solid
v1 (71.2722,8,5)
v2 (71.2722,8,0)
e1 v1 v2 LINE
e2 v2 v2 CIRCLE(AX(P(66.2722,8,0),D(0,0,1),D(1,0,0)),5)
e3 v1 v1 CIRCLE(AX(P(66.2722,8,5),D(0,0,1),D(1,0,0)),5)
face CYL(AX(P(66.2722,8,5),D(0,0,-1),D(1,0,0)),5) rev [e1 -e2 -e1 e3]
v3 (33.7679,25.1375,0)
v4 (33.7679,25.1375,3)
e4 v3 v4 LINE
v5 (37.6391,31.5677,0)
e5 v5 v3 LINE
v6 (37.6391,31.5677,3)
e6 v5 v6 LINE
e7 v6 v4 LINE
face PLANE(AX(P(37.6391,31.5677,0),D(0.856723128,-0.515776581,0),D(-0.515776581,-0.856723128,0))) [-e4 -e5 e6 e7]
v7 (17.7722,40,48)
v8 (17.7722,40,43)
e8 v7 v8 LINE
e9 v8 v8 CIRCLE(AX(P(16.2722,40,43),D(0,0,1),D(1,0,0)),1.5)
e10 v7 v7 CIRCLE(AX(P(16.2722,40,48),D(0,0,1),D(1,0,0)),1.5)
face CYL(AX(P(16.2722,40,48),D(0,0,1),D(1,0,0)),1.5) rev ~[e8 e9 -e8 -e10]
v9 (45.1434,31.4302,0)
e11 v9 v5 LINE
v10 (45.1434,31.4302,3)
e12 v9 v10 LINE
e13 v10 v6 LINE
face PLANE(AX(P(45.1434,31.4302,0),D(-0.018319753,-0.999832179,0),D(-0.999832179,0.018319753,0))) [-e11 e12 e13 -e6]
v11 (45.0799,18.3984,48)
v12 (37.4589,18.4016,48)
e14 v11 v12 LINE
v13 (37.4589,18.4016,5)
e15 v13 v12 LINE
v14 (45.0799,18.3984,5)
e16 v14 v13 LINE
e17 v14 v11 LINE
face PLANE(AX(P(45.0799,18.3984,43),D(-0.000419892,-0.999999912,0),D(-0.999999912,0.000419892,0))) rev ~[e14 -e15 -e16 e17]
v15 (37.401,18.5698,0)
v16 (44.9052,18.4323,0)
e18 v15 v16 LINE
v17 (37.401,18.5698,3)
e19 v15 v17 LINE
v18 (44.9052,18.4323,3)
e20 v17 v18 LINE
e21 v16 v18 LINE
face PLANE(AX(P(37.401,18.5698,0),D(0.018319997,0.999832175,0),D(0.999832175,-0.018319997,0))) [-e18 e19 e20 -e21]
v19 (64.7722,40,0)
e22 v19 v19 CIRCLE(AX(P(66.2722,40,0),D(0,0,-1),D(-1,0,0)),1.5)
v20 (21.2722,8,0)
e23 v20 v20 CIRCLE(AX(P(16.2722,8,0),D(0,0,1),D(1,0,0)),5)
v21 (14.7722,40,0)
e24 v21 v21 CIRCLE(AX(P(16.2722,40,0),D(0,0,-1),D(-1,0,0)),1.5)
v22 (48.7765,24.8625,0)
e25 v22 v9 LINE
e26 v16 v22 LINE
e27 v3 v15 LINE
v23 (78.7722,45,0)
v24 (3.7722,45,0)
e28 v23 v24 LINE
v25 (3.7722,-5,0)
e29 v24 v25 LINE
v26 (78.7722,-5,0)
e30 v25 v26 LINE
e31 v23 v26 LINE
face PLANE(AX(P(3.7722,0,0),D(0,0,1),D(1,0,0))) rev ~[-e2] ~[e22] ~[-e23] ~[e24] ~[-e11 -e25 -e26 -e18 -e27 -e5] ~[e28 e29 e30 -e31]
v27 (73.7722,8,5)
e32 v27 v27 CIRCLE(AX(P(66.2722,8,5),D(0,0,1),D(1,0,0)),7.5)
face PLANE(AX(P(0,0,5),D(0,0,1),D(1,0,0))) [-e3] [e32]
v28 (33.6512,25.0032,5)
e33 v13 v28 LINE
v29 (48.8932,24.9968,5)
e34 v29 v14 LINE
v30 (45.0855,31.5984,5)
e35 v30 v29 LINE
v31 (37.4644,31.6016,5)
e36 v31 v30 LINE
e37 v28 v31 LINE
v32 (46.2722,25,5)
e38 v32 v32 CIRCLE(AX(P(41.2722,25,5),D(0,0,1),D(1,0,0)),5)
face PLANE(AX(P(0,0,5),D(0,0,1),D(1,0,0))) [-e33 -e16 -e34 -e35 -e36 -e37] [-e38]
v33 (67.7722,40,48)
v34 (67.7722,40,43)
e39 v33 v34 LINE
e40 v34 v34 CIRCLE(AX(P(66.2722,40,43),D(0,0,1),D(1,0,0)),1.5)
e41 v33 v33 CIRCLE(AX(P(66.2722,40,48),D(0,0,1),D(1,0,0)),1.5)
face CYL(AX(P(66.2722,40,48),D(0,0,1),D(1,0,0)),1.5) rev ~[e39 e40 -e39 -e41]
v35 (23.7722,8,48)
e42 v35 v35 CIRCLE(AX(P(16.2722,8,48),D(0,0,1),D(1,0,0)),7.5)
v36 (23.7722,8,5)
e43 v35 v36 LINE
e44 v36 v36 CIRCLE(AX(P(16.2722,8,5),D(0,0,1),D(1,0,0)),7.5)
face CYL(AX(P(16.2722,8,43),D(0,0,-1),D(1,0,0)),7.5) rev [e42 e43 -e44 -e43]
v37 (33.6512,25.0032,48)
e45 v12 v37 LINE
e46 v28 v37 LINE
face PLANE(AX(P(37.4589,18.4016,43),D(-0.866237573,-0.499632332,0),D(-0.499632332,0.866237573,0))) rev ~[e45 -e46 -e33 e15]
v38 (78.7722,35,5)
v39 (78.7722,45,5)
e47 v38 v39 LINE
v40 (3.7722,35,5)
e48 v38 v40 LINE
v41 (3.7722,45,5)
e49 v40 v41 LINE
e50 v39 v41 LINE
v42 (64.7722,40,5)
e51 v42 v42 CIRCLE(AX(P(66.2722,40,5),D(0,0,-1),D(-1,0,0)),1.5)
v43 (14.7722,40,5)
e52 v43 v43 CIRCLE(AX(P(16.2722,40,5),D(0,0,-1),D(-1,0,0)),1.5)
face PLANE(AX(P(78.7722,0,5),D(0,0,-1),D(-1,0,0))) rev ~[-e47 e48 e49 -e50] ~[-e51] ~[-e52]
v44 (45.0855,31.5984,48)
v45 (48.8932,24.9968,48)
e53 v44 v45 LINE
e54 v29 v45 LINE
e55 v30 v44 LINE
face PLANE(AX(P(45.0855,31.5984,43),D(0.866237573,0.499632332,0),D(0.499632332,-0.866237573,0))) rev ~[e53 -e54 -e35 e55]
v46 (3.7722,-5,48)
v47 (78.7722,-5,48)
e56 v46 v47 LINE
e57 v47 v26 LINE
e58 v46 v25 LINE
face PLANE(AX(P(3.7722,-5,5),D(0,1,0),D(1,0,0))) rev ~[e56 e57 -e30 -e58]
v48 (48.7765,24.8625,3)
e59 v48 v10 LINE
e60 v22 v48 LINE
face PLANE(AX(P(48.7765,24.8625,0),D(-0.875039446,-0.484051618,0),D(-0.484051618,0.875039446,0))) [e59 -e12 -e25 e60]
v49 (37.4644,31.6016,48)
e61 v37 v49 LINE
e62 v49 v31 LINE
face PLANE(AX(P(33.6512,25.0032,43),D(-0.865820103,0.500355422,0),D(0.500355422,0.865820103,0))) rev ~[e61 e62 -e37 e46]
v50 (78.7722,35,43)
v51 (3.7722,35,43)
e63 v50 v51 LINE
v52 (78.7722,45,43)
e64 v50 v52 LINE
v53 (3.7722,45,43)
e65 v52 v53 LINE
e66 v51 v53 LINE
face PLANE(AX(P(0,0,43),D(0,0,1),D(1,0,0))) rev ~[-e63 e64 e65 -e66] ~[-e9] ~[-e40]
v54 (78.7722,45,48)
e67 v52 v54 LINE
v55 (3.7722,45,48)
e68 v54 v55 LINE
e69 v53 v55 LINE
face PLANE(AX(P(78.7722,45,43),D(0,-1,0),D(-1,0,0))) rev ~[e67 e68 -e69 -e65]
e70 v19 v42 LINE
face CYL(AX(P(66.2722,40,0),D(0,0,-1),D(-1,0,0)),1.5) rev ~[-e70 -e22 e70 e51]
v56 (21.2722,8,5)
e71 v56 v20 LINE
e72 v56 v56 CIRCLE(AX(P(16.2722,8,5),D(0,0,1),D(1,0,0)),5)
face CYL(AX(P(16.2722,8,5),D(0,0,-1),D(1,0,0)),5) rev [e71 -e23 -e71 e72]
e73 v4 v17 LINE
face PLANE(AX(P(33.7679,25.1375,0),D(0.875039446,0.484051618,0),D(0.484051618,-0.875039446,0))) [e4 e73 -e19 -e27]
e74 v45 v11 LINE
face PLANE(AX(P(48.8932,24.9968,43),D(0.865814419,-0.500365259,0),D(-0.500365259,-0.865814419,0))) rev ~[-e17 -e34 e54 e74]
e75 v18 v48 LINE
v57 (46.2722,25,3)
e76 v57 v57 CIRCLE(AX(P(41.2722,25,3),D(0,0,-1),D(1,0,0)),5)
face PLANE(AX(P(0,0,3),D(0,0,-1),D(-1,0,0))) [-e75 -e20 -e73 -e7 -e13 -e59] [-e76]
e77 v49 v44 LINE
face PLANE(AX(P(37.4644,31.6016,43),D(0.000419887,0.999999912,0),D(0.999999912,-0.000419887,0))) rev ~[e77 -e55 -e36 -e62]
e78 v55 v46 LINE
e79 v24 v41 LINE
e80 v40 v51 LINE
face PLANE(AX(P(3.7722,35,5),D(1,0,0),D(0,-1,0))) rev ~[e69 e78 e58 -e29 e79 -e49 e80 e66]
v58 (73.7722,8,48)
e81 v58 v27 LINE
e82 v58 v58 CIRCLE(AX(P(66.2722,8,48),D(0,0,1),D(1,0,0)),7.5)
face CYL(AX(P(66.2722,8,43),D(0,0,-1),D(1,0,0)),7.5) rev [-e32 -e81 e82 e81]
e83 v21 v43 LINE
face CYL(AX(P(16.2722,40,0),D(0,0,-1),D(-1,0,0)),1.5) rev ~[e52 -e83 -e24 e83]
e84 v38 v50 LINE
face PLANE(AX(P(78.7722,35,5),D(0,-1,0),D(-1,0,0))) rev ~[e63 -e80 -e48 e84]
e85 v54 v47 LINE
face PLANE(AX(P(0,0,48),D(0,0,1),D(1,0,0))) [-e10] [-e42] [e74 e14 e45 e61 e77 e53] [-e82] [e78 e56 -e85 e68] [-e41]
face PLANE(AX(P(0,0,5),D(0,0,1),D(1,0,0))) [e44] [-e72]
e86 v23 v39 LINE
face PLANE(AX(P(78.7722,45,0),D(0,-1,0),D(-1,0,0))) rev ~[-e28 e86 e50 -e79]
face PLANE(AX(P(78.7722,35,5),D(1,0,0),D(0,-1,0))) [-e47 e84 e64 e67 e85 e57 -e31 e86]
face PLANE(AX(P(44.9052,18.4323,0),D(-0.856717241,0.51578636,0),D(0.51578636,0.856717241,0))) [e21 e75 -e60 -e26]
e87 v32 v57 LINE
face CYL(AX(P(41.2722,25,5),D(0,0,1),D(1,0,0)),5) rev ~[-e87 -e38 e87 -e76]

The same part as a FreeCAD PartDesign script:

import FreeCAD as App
import Part
import Sketcher

V = App.Vector
Q = App.Units.Quantity


def add_polygon(sketch, points):
    """Adds a closed chain of lines whose ends are joined by coincident constraints."""
    first, n = sketch.GeometryCount, len(points)
    for a, b in zip(points, points[1:] + points[:1]):
        sketch.addGeometry(Part.LineSegment(App.Vector(*a, 0), App.Vector(*b, 0)), False)
    for i in range(n):
        sketch.addConstraint(Sketcher.Constraint("Coincident", first + i, 2, first + (i + 1) % n, 1))

doc = App.newDocument("Part")
body = doc.addObject("PartDesign::Body", "Body")

# Sketch on XY plane
sketch1 = body.newObject("Sketcher::SketchObject", "Sketch")
sketch1.AttachmentSupport = (doc.getObject("XY_Plane"), [""])
sketch1.MapMode = "FlatFace"
add_polygon(sketch1, [(3.7722, 45), (3.7722, 0), (78.7722, 0), (78.7722, 45)])  # lines 0-3
sketch1.addGeometry(Part.Circle(V(16.2722, 8, 0), V(0, 0, 1), 5), False)  # 4
sketch1.addGeometry(Part.Circle(V(66.2722, 8, 0), V(0, 0, 1), 5), False)  # 5
sketch1.addConstraint([
    Sketcher.Constraint("Vertical", 0),
    Sketcher.Constraint("Horizontal", 1),
    Sketcher.Constraint("Vertical", 2),
    Sketcher.Constraint("Horizontal", 3),
    Sketcher.Constraint("Equal", 4, 5),
    Sketcher.Constraint("PointOnObject", 0, 2, -1),
    Sketcher.Constraint("Horizontal", 4, 3, 5, 3),
    Sketcher.Constraint("Diameter", 4, Q("10 mm")),
    Sketcher.Constraint("DistanceX", 1, 1, 1, 2, Q("75 mm")),
    Sketcher.Constraint("DistanceY", 0, 2, 0, 1, Q("45 mm")),
    Sketcher.Constraint("DistanceY", -1, 1, 4, 3, Q("8 mm")),
    Sketcher.Constraint("DistanceX", 4, 3, 5, 3, Q("50 mm")),
    Sketcher.Constraint("DistanceX", 0, 2, 4, 3, Q("12.5 mm")),
    Sketcher.Constraint("DistanceX", -1, 1, 4, 3, Q("16.2722 mm")),
])
pad1 = body.newObject("PartDesign::Pad", "Pad")
pad1.Profile = sketch1
pad1.Length = 5

# Sketch on XY plane
sketch2 = body.newObject("Sketcher::SketchObject", "Sketch001")
sketch2.AttachmentSupport = (doc.getObject("XY_Plane"), [""])
sketch2.MapMode = "FlatFace"
sketch2.AttachmentOffset = App.Placement(V(0, 0, 5), App.Rotation())
sketch2.addGeometry(Part.Circle(V(41.2722, 25, 0), V(0, 0, 1), 5), False)
sketch2.addConstraint([
    Sketcher.Constraint("Diameter", 0, Q("10 mm")),
    Sketcher.Constraint("DistanceY", -1, 1, 0, 3, Q("25 mm")),
    Sketcher.Constraint("DistanceX", -1, 1, 0, 3, Q("41.2722 mm")),
])
pocket1 = body.newObject("PartDesign::Pocket", "Pocket")
pocket1.Profile = sketch2
pocket1.Length = 50

# Sketch on XY plane
sketch3 = body.newObject("Sketcher::SketchObject", "Sketch002")
sketch3.AttachmentSupport = (doc.getObject("XY_Plane"), [""])
sketch3.MapMode = "FlatFace"
sketch3.addGeometry([
    Part.Circle(V(66.2722, 40, 0), V(0, 0, 1), 1.5),
    Part.Circle(V(16.2722, 40, 0), V(0, 0, 1), 1.5),
], False)
sketch3.addConstraint([
    Sketcher.Constraint("Equal", 0, 1),
    Sketcher.Constraint("Horizontal", 0, 3, 1, 3),
    Sketcher.Constraint("Diameter", 0, Q("3 mm")),
    Sketcher.Constraint("DistanceX", 1, 3, 0, 3, Q("50 mm")),
    Sketcher.Constraint("DistanceY", -1, 1, 0, 3, Q("40 mm")),
    Sketcher.Constraint("DistanceX", -1, 1, 0, 3, Q("66.2722 mm")),
])
pocket2 = body.newObject("PartDesign::Pocket", "Pocket001")
pocket2.Profile = sketch3
pocket2.Length = 100
pocket2.Reversed = True

# Sketch on XZ plane
sketch4 = body.newObject("Sketcher::SketchObject", "Sketch003")
sketch4.AttachmentSupport = (doc.getObject("XZ_Plane"), [""])
sketch4.MapMode = "FlatFace"
add_polygon(sketch4, [(3.7722, 5), (3.7722, 0), (78.7722, 0), (78.7722, 5)])  # lines 0-3
sketch4.addConstraint([
    Sketcher.Constraint("Vertical", 0),
    Sketcher.Constraint("Horizontal", 1),
    Sketcher.Constraint("Vertical", 2),
    Sketcher.Constraint("Horizontal", 3),
    Sketcher.Constraint("PointOnObject", 0, 2, -1),
    Sketcher.Constraint("DistanceX", 1, 1, 1, 2, Q("75 mm")),
    Sketcher.Constraint("DistanceY", 0, 2, 0, 1, Q("5 mm")),
    Sketcher.Constraint("DistanceX", -1, 1, 0, 2, Q("3.7722 mm")),
])
pad2 = body.newObject("PartDesign::Pad", "Pad001")
pad2.Profile = sketch4
pad2.Length = 5

# Sketch on XY plane
sketch5 = body.newObject("Sketcher::SketchObject", "Sketch004")
sketch5.AttachmentSupport = (doc.getObject("XY_Plane"), [""])
sketch5.MapMode = "FlatFace"
add_polygon(sketch5, [(37.6391, 31.5677), (45.1434, 31.4302), (48.7765, 24.8625), (44.9052, 18.4323), (37.401, 18.5698), (33.7679, 25.1375)])  # lines 0-5
sketch5.addGeometry(Part.Circle(V(41.2722, 25, 0), V(0, 0, 1), 5), False)  # 6
sketch5.addConstraint([
    Sketcher.Constraint("Parallel", 0, 3),
    Sketcher.Constraint("Parallel", 1, 4),
    Sketcher.Constraint("Parallel", 2, 5),
    Sketcher.Constraint("Equal", 0, 1),
    Sketcher.Constraint("Equal", 1, 2),
    Sketcher.Constraint("Equal", 2, 3),
    Sketcher.Constraint("Diameter", 6, Q("10 mm")),
    Sketcher.Constraint("DistanceY", -1, 1, 6, 3, Q("25 mm")),
    Sketcher.Constraint("Angle", 0, Q("-1.0497 deg")),
    Sketcher.Constraint("Angle", 1, Q("-61.0496 deg")),
    Sketcher.Constraint("Angle", 2, Q("-121.05 deg")),
    Sketcher.Constraint("DistanceX", -1, 1, 3, 2, Q("37.401 mm")),
    Sketcher.Constraint("DistanceX", -1, 1, 4, 2, Q("33.768 mm")),
    Sketcher.Constraint("DistanceX", 6, 3, 2, 2, Q("3.633 mm")),
    Sketcher.Constraint("DistanceY", -1, 1, 0, 2, Q("31.4302 mm")),
])
pocket3 = body.newObject("PartDesign::Pocket", "Pocket002")
pocket3.Profile = sketch5
pocket3.Length = 3
pocket3.Reversed = True

# Sketch on XY plane
sketch6 = body.newObject("Sketcher::SketchObject", "Sketch005")
sketch6.AttachmentSupport = (doc.getObject("XY_Plane"), [""])
sketch6.MapMode = "FlatFace"
sketch6.AttachmentOffset = App.Placement(V(0, 0, 5), App.Rotation())
add_polygon(sketch6, [(78.7722, -5), (78.7722, 35), (3.7722, 35), (3.7722, -5)])  # lines 0-3
sketch6.addGeometry(Part.Circle(V(16.2722, 8, 0), V(0, 0, 1), 5), False)  # 4
sketch6.addGeometry(Part.Circle(V(66.2722, 8, 0), V(0, 0, 1), 5), False)  # 5
sketch6.addGeometry(Part.Circle(V(41.2722, 25, 0), V(0, 0, 1), 5), False)  # 6
sketch6.addConstraint([
    Sketcher.Constraint("Vertical", 0),
    Sketcher.Constraint("Horizontal", 1),
    Sketcher.Constraint("Vertical", 2),
    Sketcher.Constraint("Horizontal", 3),
    Sketcher.Constraint("Equal", 4, 5),
    Sketcher.Constraint("Equal", 5, 6),
    Sketcher.Constraint("Horizontal", 4, 3, 5, 3),
    Sketcher.Constraint("Diameter", 4, Q("10 mm")),
    Sketcher.Constraint("DistanceY", 6, 3, 0, 2, Q("10 mm")),
    Sketcher.Constraint("DistanceX", 1, 2, 1, 1, Q("75 mm")),
    Sketcher.Constraint("DistanceY", 0, 1, 0, 2, Q("40 mm")),
    Sketcher.Constraint("DistanceY", -1, 1, 4, 3, Q("8 mm")),
    Sketcher.Constraint("DistanceY", -1, 1, 6, 3, Q("25 mm")),
    Sketcher.Constraint("DistanceX", 4, 3, 5, 3, Q("50 mm")),
    Sketcher.Constraint("DistanceX", 4, 3, 6, 3, Q("25 mm")),
    Sketcher.Constraint("DistanceX", 5, 3, 0, 2, Q("12.5 mm")),
    Sketcher.Constraint("DistanceX", -1, 1, 4, 3, Q("16.2722 mm")),
])
pad3 = body.newObject("PartDesign::Pad", "Pad002")
pad3.Profile = sketch6
pad3.Length = 38

# Sketch on XY plane
sketch7 = body.newObject("Sketcher::SketchObject", "Sketch006")
sketch7.AttachmentSupport = (doc.getObject("XY_Plane"), [""])
sketch7.MapMode = "FlatFace"
sketch7.AttachmentOffset = App.Placement(V(0, 0, 5), App.Rotation())
sketch7.addGeometry([
    Part.Circle(V(16.2722, 8, 0), V(0, 0, 1), 7.5),
    Part.Circle(V(16.2722, 8, 0), V(0, 0, 1), 5),
    Part.Circle(V(66.2722, 8, 0), V(0, 0, 1), 7.5),
    Part.Circle(V(66.2722, 8, 0), V(0, 0, 1), 5),
], False)
sketch7.addConstraint([
    Sketcher.Constraint("Coincident", 1, 3, 0, 3),
    Sketcher.Constraint("Coincident", 3, 3, 2, 3),
    Sketcher.Constraint("Equal", 0, 2),
    Sketcher.Constraint("Equal", 1, 3),
    Sketcher.Constraint("Horizontal", 1, 3, 2, 3),
    Sketcher.Constraint("Diameter", 0, Q("15 mm")),
    Sketcher.Constraint("Diameter", 1, Q("10 mm")),
    Sketcher.Constraint("DistanceY", -1, 1, 0, 3, Q("8 mm")),
    Sketcher.Constraint("DistanceX", 0, 3, 2, 3, Q("50 mm")),
    Sketcher.Constraint("DistanceX", -1, 1, 0, 3, Q("16.2722 mm")),
])
pocket4 = body.newObject("PartDesign::Pocket", "Pocket003")
pocket4.Profile = sketch7
pocket4.Length = 38
pocket4.Reversed = True

# Sketch on XY plane
sketch8 = body.newObject("Sketcher::SketchObject", "Sketch007")
sketch8.AttachmentSupport = (doc.getObject("XY_Plane"), [""])
sketch8.MapMode = "FlatFace"
sketch8.AttachmentOffset = App.Placement(V(0, 0, 5), App.Rotation())
add_polygon(sketch8, [(45.0855, 31.5984), (37.4644, 31.6016), (33.6512, 25.0032), (37.4589, 18.4016), (45.0799, 18.3984), (48.8932, 24.9968)])  # lines 0-5
sketch8.addConstraint([
    Sketcher.Constraint("Parallel", 0, 3),
    Sketcher.Constraint("Parallel", 1, 4),
    Sketcher.Constraint("Parallel", 2, 5),
    Sketcher.Constraint("Equal", 0, 1),
    Sketcher.Constraint("Equal", 1, 2),
    Sketcher.Constraint("Equal", 2, 3),
    Sketcher.Constraint("DistanceY", 2, 2, 0, 2, Q("13.2 mm")),
    Sketcher.Constraint("DistanceX", -1, 1, 3, 2, Q("45.08 mm")),
    Sketcher.Constraint("Distance", 0, Q("7.621 mm")),
    Sketcher.Constraint("DistanceX", -1, 1, 0, 2, Q("37.4644 mm")),
    Sketcher.Constraint("DistanceY", -1, 1, 0, 2, Q("31.6016 mm")),
    Sketcher.Constraint("DistanceY", -1, 1, 3, 2, Q("18.3984 mm")),
])
pocket5 = body.newObject("PartDesign::Pocket", "Pocket004")
pocket5.Profile = sketch8
pocket5.Length = 38
pocket5.Reversed = True

# Sketch on XY plane
sketch9 = body.newObject("Sketcher::SketchObject", "Sketch008")
sketch9.AttachmentSupport = (doc.getObject("XY_Plane"), [""])
sketch9.MapMode = "FlatFace"
sketch9.AttachmentOffset = App.Placement(V(0, 0, 43), App.Rotation())
add_polygon(sketch9, [(78.7722, -5), (78.7722, 45), (3.7722, 45), (3.7722, -5)])  # lines 0-3
sketch9.addGeometry(Part.Circle(V(16.2722, 8, 0), V(0, 0, 1), 7.5), False)  # 4
sketch9.addGeometry(Part.Circle(V(66.2722, 8, 0), V(0, 0, 1), 7.5), False)  # 5
add_polygon(sketch9, [(37.4644, 31.6016), (45.0855, 31.5984), (48.8932, 24.9968), (45.0799, 18.3984), (37.4589, 18.4016), (33.6512, 25.0032)])  # lines 6-11
sketch9.addConstraint([
    Sketcher.Constraint("Vertical", 0),
    Sketcher.Constraint("Horizontal", 1),
    Sketcher.Constraint("Vertical", 2),
    Sketcher.Constraint("Horizontal", 3),
    Sketcher.Constraint("Equal", 4, 5),
    Sketcher.Constraint("Parallel", 6, 9),
    Sketcher.Constraint("Parallel", 7, 10),
    Sketcher.Constraint("Parallel", 8, 11),
    Sketcher.Constraint("Horizontal", 4, 3, 5, 3),
    Sketcher.Constraint("Equal", 6, 7),
    Sketcher.Constraint("Equal", 7, 8),
    Sketcher.Constraint("Equal", 8, 9),
    Sketcher.Constraint("Diameter", 4, Q("15 mm")),
    Sketcher.Constraint("DistanceX", 1, 2, 1, 1, Q("75 mm")),
    Sketcher.Constraint("DistanceY", 0, 1, 0, 2, Q("50 mm")),
    Sketcher.Constraint("DistanceY", -1, 1, 4, 3, Q("8 mm")),
    Sketcher.Constraint("DistanceY", -1, 1, 0, 2, Q("45 mm")),
    Sketcher.Constraint("DistanceX", 4, 3, 5, 3, Q("50 mm")),
    Sketcher.Constraint("DistanceX", 5, 3, 0, 2, Q("12.5 mm")),
    Sketcher.Constraint("DistanceY", 8, 2, 6, 2, Q("13.2 mm")),
    Sketcher.Constraint("DistanceX", -1, 1, 8, 2, Q("45.08 mm")),
    Sketcher.Constraint("Distance", 6, Q("7.621 mm")),
    Sketcher.Constraint("DistanceX", 7, 2, 5, 3, Q("17.379 mm")),
    Sketcher.Constraint("DistanceX", -1, 1, 4, 3, Q("16.2722 mm")),
    Sketcher.Constraint("DistanceY", -1, 1, 6, 2, Q("31.5984 mm")),
    Sketcher.Constraint("DistanceY", -1, 1, 9, 2, Q("18.4016 mm")),
])
pad4 = body.newObject("PartDesign::Pad", "Pad003")
pad4.Profile = sketch9
pad4.Length = 5

# Sketch on XY plane
sketch10 = body.newObject("Sketcher::SketchObject", "Sketch009")
sketch10.AttachmentSupport = (doc.getObject("XY_Plane"), [""])
sketch10.MapMode = "FlatFace"
sketch10.AttachmentOffset = App.Placement(V(0, 0, 48), App.Rotation())
sketch10.addGeometry([
    Part.Circle(V(16.2722, 40, 0), V(0, 0, 1), 1.5),
    Part.Circle(V(66.2722, 40, 0), V(0, 0, 1), 1.5),
], False)
sketch10.addConstraint([
    Sketcher.Constraint("Equal", 0, 1),
    Sketcher.Constraint("Horizontal", 0, 3, 1, 3),
    Sketcher.Constraint("Diameter", 0, Q("3 mm")),
    Sketcher.Constraint("DistanceX", 0, 3, 1, 3, Q("50 mm")),
    Sketcher.Constraint("DistanceY", -1, 1, 0, 3, Q("40 mm")),
    Sketcher.Constraint("DistanceX", -1, 1, 0, 3, Q("16.2722 mm")),
])
pocket6 = body.newObject("PartDesign::Pocket", "Pocket005")
pocket6.Profile = sketch10
pocket6.Length = 5

doc.recompute()
